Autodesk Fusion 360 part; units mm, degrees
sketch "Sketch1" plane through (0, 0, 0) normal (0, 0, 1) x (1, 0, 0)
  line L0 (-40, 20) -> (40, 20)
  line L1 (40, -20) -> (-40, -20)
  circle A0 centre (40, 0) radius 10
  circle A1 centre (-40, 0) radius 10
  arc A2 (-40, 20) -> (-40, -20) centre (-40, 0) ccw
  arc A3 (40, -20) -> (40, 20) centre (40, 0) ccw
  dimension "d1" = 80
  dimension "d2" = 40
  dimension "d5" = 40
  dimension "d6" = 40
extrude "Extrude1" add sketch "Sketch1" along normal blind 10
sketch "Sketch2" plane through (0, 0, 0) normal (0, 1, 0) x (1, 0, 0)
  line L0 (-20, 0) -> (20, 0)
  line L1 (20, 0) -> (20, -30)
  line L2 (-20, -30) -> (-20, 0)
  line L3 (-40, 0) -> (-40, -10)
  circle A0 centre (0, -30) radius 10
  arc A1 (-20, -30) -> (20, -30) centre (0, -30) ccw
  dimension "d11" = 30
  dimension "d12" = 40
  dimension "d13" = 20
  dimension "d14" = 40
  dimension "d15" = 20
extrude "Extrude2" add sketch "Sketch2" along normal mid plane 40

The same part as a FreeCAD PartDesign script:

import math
import FreeCAD as App
import Part
import Sketcher
from FreeCAD import Vector

doc = App.newDocument("Part")
params = doc.addObject("Spreadsheet::Sheet", "Params")
for row, (alias, value) in enumerate([
    ("sketch1_radius", "20 mm"),
    ("sketch1_width", "80 mm"),
    ("sketch1_diameter", "20 mm"),
    ("pad1_length", "10 mm"),
    ("sketch2_diameter", "20 mm"),
    ("sketch2_radius", "20 mm"),
    ("sketch2_height", "30 mm"),
    ("pad2_length", "40 mm"),
], start=1):
    params.set(f"A{row}", alias)
    params.set(f"B{row}", "=" + value)
    params.setAlias(f"B{row}", alias)

body = doc.addObject("PartDesign::Body", "Body")

# Sketch on XY plane
sketch1 = body.newObject("Sketcher::SketchObject", "Sketch")
sketch1.AttachmentSupport = (doc.getObject("XY_Plane"), [""])
sketch1.MapMode = "FlatFace"
sketch1.addGeometry(Part.LineSegment(Vector(40, 20, 0), Vector(-40, 20, 0)), False)
sketch1.addGeometry(Part.ArcOfCircle(Part.Circle(Vector(-40, 0, 0), Vector(0, 0, 1), 20), math.radians(90), math.radians(270)), False)
sketch1.addGeometry(Part.LineSegment(Vector(-40, -20, 0), Vector(40, -20, 0)), False)
sketch1.addGeometry(Part.ArcOfCircle(Part.Circle(Vector(40, 0, 0), Vector(0, 0, 1), 20), math.radians(-90), math.radians(90)), False)
sketch1.addGeometry(Part.Circle(Vector(-40, 0, 0), Vector(0, 0, 1), 10), False)
sketch1.addGeometry(Part.Circle(Vector(40, 0, 0), Vector(0, 0, 1), 10), False)
sketch1.addConstraint(Sketcher.Constraint("Tangent", 0, 2, 1, 1))
sketch1.addConstraint(Sketcher.Constraint("Tangent", 1, 2, 2, 1))
sketch1.addConstraint(Sketcher.Constraint("Tangent", 2, 2, 3, 1))
sketch1.addConstraint(Sketcher.Constraint("Tangent", 3, 2, 0, 1))
sketch1.addConstraint(Sketcher.Constraint("Horizontal", 0))
sketch1.addConstraint(Sketcher.Constraint("Horizontal", 2))
sketch1.addConstraint(Sketcher.Constraint("Coincident", 4, 3, 1, 3))
sketch1.addConstraint(Sketcher.Constraint("Coincident", 5, 3, 3, 3))
sketch1.addConstraint(Sketcher.Constraint("Equal", 4, 5))
sketch1.addConstraint(Sketcher.Constraint("Symmetric", 1, 3, 3, 3, -1, 1))
sketch1.addConstraint(Sketcher.Constraint("Radius", 1, 20.0))
sketch1.addConstraint(Sketcher.Constraint("DistanceX", 0, 2, 0, 1, 80.0))
sketch1.addConstraint(Sketcher.Constraint("Diameter", 4, 20.0))
sketch1.setExpression("Constraints[10]", "Params.sketch1_radius")
sketch1.setExpression("Constraints[11]", "Params.sketch1_width")
sketch1.setExpression("Constraints[12]", "Params.sketch1_diameter")
pad1 = body.newObject("PartDesign::Pad", "Pad")
pad1.Profile = sketch1
pad1.setExpression("Length", "Params.pad1_length")

# Sketch on XZ plane
sketch2 = body.newObject("Sketcher::SketchObject", "Sketch001")
sketch2.AttachmentSupport = (doc.getObject("XZ_Plane"), [""])
sketch2.MapMode = "FlatFace"
sketch2.addGeometry(Part.LineSegment(Vector(20, 0, 0), Vector(-20, 0, 0)), False)
sketch2.addGeometry(Part.LineSegment(Vector(-20, 0, 0), Vector(-20, 30, 0)), False)
sketch2.addGeometry(Part.ArcOfCircle(Part.Circle(Vector(0, 30, 0), Vector(0, 0, 1), 20), math.radians(0), math.radians(180)), False)
sketch2.addGeometry(Part.LineSegment(Vector(20, 30, 0), Vector(20, 0, 0)), False)
sketch2.addGeometry(Part.Circle(Vector(0, 30, 0), Vector(0, 0, 1), 10), False)
sketch2.addConstraint(Sketcher.Constraint("Coincident", 0, 2, 1, 1))
sketch2.addConstraint(Sketcher.Constraint("Tangent", 1, 2, 2, 2))
sketch2.addConstraint(Sketcher.Constraint("Tangent", 2, 1, 3, 1))
sketch2.addConstraint(Sketcher.Constraint("Coincident", 3, 2, 0, 1))
sketch2.addConstraint(Sketcher.Constraint("Horizontal", 0))
sketch2.addConstraint(Sketcher.Constraint("Vertical", 1))
sketch2.addConstraint(Sketcher.Constraint("Vertical", 3))
sketch2.addConstraint(Sketcher.Constraint("Coincident", 4, 3, 2, 3))
sketch2.addConstraint(Sketcher.Constraint("Symmetric", 0, 2, 3, 2, -1, 1))
sketch2.addConstraint(Sketcher.Constraint("Diameter", 4, 20.0))
sketch2.addConstraint(Sketcher.Constraint("Radius", 2, 20.0))
sketch2.addConstraint(Sketcher.Constraint("DistanceY", 1, 1, 1, 2, 30.0))
sketch2.setExpression("Constraints[9]", "Params.sketch2_diameter")
sketch2.setExpression("Constraints[10]", "Params.sketch2_radius")
sketch2.setExpression("Constraints[11]", "Params.sketch2_height")
pad2 = body.newObject("PartDesign::Pad", "Pad001")
pad2.Profile = sketch2
pad2.setExpression("Length", "Params.pad2_length")
pad2.Midplane = True

doc.recompute()
